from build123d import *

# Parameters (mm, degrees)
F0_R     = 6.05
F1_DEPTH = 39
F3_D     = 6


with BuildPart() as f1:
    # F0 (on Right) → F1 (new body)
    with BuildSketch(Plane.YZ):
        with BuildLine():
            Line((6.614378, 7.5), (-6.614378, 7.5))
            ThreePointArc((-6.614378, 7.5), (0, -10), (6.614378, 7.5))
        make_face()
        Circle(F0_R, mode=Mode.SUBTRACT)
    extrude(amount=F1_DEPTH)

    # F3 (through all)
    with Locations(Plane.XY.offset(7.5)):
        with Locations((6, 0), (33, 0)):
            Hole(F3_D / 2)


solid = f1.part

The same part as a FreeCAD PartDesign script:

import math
import FreeCAD as App
import Part
import Sketcher
from FreeCAD import Vector
Q = App.Units.Quantity

doc = App.newDocument("Part")
body = doc.addObject("PartDesign::Body", "Body")

sketch1 = body.newObject("Sketcher::SketchObject", "Sketch")
sketch1.AttachmentSupport = (doc.getObject("YZ_Plane"), [""])
sketch1.MapMode = "FlatFace"
sketch1.addGeometry([
    Part.LineSegment(Vector(6.614378, 7.5, 0), Vector(-6.614378, 7.5, 0)),
    Part.ArcOfCircle(Part.Circle(Vector(0, 0, 0), Vector(0, 0, 1), 10), math.radians(131.409621), math.radians(408.590379)),
    Part.Circle(Vector(0, 0, 0), Vector(0, 0, 1), 6.05),
], False)
sketch1.addConstraint([
    Sketcher.Constraint("Coincident", 0, 1, 1, 2),
    Sketcher.Constraint("Coincident", 1, 1, 0, 2),
    Sketcher.Constraint("Horizontal", 0),
    Sketcher.Constraint("Coincident", 1, 3, -1, 1),
    Sketcher.Constraint("Coincident", 2, 3, -1, 1),
    Sketcher.Constraint("Radius", 1, Q("10 mm")),
    Sketcher.Constraint("Diameter", 2, Q("12.1 mm")),
    Sketcher.Constraint("DistanceY", -1, 1, 0, 1, Q("7.5 mm")),
])
pad1 = body.newObject("PartDesign::Pad", "Pad")
pad1.Profile = sketch1
pad1.Length = 39

sketch2 = body.newObject("Sketcher::SketchObject", "Sketch001")
sketch2.AttachmentSupport = (doc.getObject("XY_Plane"), [""])
sketch2.MapMode = "FlatFace"
sketch2.AttachmentOffset = App.Placement(Vector(0, 0, 7.5), App.Rotation())
sketch2.addGeometry([
    Part.Circle(Vector(6, 0, 0), Vector(0, 0, 1), 3),
    Part.Circle(Vector(33, 0, 0), Vector(0, 0, 1), 3),
], False)
sketch2.addConstraint([
    Sketcher.Constraint("Equal", 0, 1),
    Sketcher.Constraint("PointOnObject", 0, 3, -1),
    Sketcher.Constraint("PointOnObject", 1, 3, -1),
    Sketcher.Constraint("Diameter", 0, Q("6 mm")),
    Sketcher.Constraint("DistanceX", -1, 1, 0, 3, Q("6 mm")),
    Sketcher.Constraint("DistanceX", -1, 1, 1, 3, Q("33 mm")),
])
doc.recompute()
hole = body.newObject("PartDesign::Hole", "Hole")
hole.Profile = sketch2
hole.ThreadType = "None"
hole.Diameter = 6
hole.DepthType = "ThroughAll"

doc.recompute()
